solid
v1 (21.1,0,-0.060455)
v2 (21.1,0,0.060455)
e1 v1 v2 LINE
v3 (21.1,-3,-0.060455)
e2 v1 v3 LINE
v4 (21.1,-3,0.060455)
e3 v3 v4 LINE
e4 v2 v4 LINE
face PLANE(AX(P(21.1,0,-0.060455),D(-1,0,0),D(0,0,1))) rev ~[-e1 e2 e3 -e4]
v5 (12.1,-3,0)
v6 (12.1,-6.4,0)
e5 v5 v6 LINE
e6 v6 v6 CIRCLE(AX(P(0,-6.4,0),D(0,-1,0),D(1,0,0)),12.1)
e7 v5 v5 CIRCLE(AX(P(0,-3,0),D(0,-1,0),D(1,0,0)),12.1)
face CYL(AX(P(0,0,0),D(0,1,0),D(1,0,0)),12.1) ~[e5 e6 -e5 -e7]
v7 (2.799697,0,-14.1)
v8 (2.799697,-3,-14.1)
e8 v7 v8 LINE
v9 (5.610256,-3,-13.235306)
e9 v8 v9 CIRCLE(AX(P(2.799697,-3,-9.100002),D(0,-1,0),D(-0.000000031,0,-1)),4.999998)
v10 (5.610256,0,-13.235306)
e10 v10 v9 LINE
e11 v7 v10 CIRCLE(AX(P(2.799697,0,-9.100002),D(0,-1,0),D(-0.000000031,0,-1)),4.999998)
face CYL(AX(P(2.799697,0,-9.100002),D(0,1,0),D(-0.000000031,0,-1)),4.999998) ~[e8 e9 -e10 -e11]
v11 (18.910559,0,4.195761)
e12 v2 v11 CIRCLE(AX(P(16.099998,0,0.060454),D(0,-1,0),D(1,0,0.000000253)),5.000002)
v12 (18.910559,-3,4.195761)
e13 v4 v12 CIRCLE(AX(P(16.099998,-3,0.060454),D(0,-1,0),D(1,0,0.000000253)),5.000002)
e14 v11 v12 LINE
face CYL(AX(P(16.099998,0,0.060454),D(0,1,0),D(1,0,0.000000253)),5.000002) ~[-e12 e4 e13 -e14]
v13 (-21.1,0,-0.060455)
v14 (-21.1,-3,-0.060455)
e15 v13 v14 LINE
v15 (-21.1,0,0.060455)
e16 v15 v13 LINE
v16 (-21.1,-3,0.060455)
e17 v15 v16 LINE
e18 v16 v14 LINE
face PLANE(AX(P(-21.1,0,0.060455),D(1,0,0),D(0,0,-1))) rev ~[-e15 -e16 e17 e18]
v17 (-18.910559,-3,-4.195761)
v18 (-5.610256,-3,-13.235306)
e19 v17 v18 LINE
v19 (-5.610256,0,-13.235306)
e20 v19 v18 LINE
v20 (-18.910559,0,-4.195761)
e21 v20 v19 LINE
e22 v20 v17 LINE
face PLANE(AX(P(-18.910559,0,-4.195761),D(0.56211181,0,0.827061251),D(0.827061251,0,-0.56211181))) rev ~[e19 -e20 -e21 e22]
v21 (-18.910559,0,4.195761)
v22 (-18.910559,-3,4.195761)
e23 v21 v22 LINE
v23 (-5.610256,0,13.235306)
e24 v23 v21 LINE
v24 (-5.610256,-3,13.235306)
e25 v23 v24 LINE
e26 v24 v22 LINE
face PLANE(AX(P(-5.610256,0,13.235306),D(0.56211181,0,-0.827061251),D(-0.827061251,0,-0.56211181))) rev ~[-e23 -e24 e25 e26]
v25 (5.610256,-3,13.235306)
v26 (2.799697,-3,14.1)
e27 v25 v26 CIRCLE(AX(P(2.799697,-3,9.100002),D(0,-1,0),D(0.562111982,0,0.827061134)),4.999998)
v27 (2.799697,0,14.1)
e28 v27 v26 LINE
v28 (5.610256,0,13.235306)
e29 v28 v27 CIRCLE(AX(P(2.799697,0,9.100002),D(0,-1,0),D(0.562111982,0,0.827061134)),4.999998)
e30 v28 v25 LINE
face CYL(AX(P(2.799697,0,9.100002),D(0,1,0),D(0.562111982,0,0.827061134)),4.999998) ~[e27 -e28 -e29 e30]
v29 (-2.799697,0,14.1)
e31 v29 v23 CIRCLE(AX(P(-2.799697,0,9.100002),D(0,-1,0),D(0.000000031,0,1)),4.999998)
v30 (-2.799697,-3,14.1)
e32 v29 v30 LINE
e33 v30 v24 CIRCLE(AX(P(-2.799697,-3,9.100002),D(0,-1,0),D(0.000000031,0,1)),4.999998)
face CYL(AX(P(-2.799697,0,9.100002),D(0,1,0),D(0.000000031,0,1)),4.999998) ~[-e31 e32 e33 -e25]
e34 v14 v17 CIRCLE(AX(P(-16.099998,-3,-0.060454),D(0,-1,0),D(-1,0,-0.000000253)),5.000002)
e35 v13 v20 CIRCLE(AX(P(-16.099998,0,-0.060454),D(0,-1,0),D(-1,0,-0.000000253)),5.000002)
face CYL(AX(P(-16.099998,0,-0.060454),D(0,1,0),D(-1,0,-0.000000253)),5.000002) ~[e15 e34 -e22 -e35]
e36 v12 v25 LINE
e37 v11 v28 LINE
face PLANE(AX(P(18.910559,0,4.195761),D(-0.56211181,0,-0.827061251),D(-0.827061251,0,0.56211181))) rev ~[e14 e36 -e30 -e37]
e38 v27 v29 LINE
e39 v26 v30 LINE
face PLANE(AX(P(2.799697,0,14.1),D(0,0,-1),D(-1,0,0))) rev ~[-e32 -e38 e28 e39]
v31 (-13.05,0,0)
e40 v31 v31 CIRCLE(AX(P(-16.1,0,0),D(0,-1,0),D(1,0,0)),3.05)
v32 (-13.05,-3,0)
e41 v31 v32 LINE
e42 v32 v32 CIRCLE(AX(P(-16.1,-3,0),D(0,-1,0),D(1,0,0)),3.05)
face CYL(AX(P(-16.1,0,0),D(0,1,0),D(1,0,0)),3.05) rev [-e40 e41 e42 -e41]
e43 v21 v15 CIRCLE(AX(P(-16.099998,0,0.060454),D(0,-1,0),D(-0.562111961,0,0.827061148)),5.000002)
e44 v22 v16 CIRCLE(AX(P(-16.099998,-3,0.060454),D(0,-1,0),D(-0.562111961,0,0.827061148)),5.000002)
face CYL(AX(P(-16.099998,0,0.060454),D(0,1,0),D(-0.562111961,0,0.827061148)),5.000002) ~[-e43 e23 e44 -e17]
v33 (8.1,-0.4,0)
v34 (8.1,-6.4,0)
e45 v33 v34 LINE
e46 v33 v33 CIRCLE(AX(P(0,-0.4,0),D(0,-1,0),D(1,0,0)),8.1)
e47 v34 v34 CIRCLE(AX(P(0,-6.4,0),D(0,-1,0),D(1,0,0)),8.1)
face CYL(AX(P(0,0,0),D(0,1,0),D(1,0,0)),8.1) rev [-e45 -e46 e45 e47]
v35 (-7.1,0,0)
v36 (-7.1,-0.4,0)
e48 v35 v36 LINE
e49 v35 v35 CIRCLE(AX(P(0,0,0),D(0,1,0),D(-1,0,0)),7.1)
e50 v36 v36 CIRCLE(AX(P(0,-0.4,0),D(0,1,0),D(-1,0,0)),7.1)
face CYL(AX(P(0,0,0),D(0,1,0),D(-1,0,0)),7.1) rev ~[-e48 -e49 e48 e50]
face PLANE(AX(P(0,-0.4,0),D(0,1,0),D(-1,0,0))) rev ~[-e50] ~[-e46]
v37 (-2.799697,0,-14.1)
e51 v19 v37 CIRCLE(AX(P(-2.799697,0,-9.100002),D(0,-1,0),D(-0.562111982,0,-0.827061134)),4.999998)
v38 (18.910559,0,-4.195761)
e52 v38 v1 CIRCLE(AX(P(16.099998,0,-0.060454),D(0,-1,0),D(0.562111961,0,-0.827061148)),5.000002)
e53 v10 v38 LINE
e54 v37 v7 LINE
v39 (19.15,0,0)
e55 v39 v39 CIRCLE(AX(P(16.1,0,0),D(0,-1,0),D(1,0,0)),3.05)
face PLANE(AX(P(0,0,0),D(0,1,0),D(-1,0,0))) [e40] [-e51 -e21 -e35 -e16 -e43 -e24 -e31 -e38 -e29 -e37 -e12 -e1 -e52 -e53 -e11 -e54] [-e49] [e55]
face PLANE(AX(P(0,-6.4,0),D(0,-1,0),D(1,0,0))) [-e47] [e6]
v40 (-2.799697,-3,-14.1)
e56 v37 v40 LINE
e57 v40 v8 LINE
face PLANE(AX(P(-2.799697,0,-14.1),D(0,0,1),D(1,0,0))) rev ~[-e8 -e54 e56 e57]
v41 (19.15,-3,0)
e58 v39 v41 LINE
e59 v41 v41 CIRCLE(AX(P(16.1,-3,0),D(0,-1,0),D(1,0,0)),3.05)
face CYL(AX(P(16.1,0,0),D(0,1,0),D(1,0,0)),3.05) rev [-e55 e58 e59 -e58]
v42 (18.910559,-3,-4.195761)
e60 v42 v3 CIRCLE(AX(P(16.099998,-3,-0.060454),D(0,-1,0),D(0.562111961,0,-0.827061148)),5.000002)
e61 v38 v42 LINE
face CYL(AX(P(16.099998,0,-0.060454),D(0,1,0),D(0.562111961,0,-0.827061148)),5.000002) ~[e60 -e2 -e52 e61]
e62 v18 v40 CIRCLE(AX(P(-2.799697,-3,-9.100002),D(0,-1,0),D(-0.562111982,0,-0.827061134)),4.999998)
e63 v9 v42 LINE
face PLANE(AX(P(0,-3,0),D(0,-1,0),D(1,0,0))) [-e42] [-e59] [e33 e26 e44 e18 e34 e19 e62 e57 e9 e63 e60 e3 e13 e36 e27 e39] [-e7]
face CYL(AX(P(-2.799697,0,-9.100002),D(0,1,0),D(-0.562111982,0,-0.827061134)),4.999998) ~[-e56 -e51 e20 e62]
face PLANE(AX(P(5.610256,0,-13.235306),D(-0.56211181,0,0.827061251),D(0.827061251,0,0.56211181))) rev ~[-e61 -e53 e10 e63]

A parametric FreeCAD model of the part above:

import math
import FreeCAD as App
import Part
import Sketcher
Q = App.Units.Quantity

doc = App.newDocument("Part")
body = doc.addObject("PartDesign::Body", "Body")

# Sketch on XZ plane
sketch1 = body.newObject("Sketcher::SketchObject", "Sketch")
sketch1.AttachmentSupport = (doc.getObject("XZ_Plane"), [""])
sketch1.MapMode = "FlatFace"
sketch1.addGeometry(Part.Circle(App.Vector(0, 0, 0), App.Vector(0, 0, 1), 12.1), False)
sketch1.addGeometry(Part.Circle(App.Vector(0, 0, 0), App.Vector(0, 0, 1), 8.1), False)
sketch1.addConstraint(Sketcher.Constraint("Coincident", 0, 3, -1, 1))
sketch1.addConstraint(Sketcher.Constraint("Coincident", 1, 3, -1, 1))
sketch1.addConstraint(Sketcher.Constraint("Diameter", 0, Q("24.2 mm")))
sketch1.addConstraint(Sketcher.Constraint("Diameter", 1, Q("16.2 mm")))
pad1 = body.newObject("PartDesign::Pad", "Pad")
pad1.Profile = sketch1
pad1.Length = 6.4

# Sketch on XZ plane
sketch2 = body.newObject("Sketcher::SketchObject", "Sketch001")
sketch2.AttachmentSupport = (doc.getObject("XZ_Plane"), [""])
sketch2.MapMode = "FlatFace"
sketch2.addGeometry(Part.LineSegment(App.Vector(-2.799697, -14.1, 0), App.Vector(2.799697, -14.1, 0)), False)
sketch2.addGeometry(Part.ArcOfCircle(Part.Circle(App.Vector(2.799697, -9.100002, 0), App.Vector(0, 0, 1), 4.999998), math.radians(-90.000002), math.radians(-55.798018)), False)
sketch2.addGeometry(Part.LineSegment(App.Vector(5.610256, -13.235306, 0), App.Vector(18.910559, -4.195761, 0)), False)
sketch2.addGeometry(Part.ArcOfCircle(Part.Circle(App.Vector(16.099998, -0.060454, 0), App.Vector(0, 0, 1), 5.000002), math.radians(-55.79802), math.radians(-0.000014)), False)
sketch2.addGeometry(Part.LineSegment(App.Vector(21.1, -0.060455, 0), App.Vector(21.1, 0.060455, 0)), False)
sketch2.addGeometry(Part.ArcOfCircle(Part.Circle(App.Vector(16.099998, 0.060454, 0), App.Vector(0, 0, 1), 5.000002), math.radians(0.000014), math.radians(55.79802)), False)
sketch2.addGeometry(Part.LineSegment(App.Vector(18.910559, 4.195761, 0), App.Vector(5.610256, 13.235306, 0)), False)
sketch2.addGeometry(Part.ArcOfCircle(Part.Circle(App.Vector(2.799697, 9.100002, 0), App.Vector(0, 0, 1), 4.999998), math.radians(55.798018), math.radians(90.000002)), False)
sketch2.addGeometry(Part.LineSegment(App.Vector(2.799697, 14.1, 0), App.Vector(-2.799697, 14.1, 0)), False)
sketch2.addGeometry(Part.ArcOfCircle(Part.Circle(App.Vector(-2.799697, 9.100002, 0), App.Vector(0, 0, 1), 4.999998), math.radians(89.999998), math.radians(124.201982)), False)
sketch2.addGeometry(Part.LineSegment(App.Vector(-5.610256, 13.235306, 0), App.Vector(-18.910559, 4.195761, 0)), False)
sketch2.addGeometry(Part.ArcOfCircle(Part.Circle(App.Vector(-16.099998, 0.060454, 0), App.Vector(0, 0, 1), 5.000002), math.radians(124.20198), math.radians(179.999986)), False)
sketch2.addGeometry(Part.LineSegment(App.Vector(-21.1, 0.060455, 0), App.Vector(-21.1, -0.060455, 0)), False)
sketch2.addGeometry(Part.ArcOfCircle(Part.Circle(App.Vector(-16.099998, -0.060454, 0), App.Vector(0, 0, 1), 5.000002), math.radians(-179.999986), math.radians(-124.20198)), False)
sketch2.addGeometry(Part.LineSegment(App.Vector(-18.910559, -4.195761, 0), App.Vector(-5.610256, -13.235306, 0)), False)
sketch2.addGeometry(Part.ArcOfCircle(Part.Circle(App.Vector(-2.799697, -9.100002, 0), App.Vector(0, 0, 1), 4.999998), math.radians(-124.201982), math.radians(-89.999998)), False)
sketch2.addGeometry(Part.Circle(App.Vector(-16.1, 0, 0), App.Vector(0, 0, 1), 3.05), False)
sketch2.addGeometry(Part.Circle(App.Vector(0, 0, 0), App.Vector(0, 0, 1), 12.1), False)
sketch2.addGeometry(Part.Circle(App.Vector(16.1, 0, 0), App.Vector(0, 0, 1), 3.05), False)
sketch2.addConstraint(Sketcher.Constraint("Tangent", 0, 2, 1, 1))
sketch2.addConstraint(Sketcher.Constraint("Tangent", 1, 2, 2, 1))
sketch2.addConstraint(Sketcher.Constraint("Tangent", 2, 2, 3, 1))
sketch2.addConstraint(Sketcher.Constraint("Tangent", 3, 2, 4, 1))
sketch2.addConstraint(Sketcher.Constraint("Tangent", 4, 2, 5, 1))
sketch2.addConstraint(Sketcher.Constraint("Tangent", 5, 2, 6, 1))
sketch2.addConstraint(Sketcher.Constraint("Tangent", 6, 2, 7, 1))
sketch2.addConstraint(Sketcher.Constraint("Tangent", 7, 2, 8, 1))
sketch2.addConstraint(Sketcher.Constraint("Tangent", 8, 2, 9, 1))
sketch2.addConstraint(Sketcher.Constraint("Tangent", 9, 2, 10, 1))
sketch2.addConstraint(Sketcher.Constraint("Tangent", 10, 2, 11, 1))
sketch2.addConstraint(Sketcher.Constraint("Tangent", 11, 2, 12, 1))
sketch2.addConstraint(Sketcher.Constraint("Tangent", 12, 2, 13, 1))
sketch2.addConstraint(Sketcher.Constraint("Tangent", 13, 2, 14, 1))
sketch2.addConstraint(Sketcher.Constraint("Tangent", 14, 2, 15, 1))
sketch2.addConstraint(Sketcher.Constraint("Tangent", 15, 2, 0, 1))
sketch2.addConstraint(Sketcher.Constraint("Horizontal", 0))
sketch2.addConstraint(Sketcher.Constraint("Vertical", 4))
sketch2.addConstraint(Sketcher.Constraint("Horizontal", 8))
sketch2.addConstraint(Sketcher.Constraint("Vertical", 12))
sketch2.addConstraint(Sketcher.Constraint("Coincident", 17, 3, -1, 1))
sketch2.addConstraint(Sketcher.Constraint("Equal", 3, 5))
sketch2.addConstraint(Sketcher.Constraint("Equal", 1, 7))
sketch2.addConstraint(Sketcher.Constraint("Equal", 7, 9))
sketch2.addConstraint(Sketcher.Constraint("Equal", 5, 11))
sketch2.addConstraint(Sketcher.Constraint("Equal", 11, 13))
sketch2.addConstraint(Sketcher.Constraint("Equal", 9, 15))
sketch2.addConstraint(Sketcher.Constraint("Equal", 16, 18))
sketch2.addConstraint(Sketcher.Constraint("Symmetric", 1, 3, 9, 3, -1, 1))
sketch2.addConstraint(Sketcher.Constraint("Symmetric", 3, 3, 11, 3, -1, 1))
sketch2.addConstraint(Sketcher.Constraint("Symmetric", 16, 3, 18, 3, -1, 1))
sketch2.addConstraint(Sketcher.Constraint("Symmetric", 5, 2, 13, 2, -1, 1))
sketch2.addConstraint(Sketcher.Constraint("Symmetric", 6, 2, 9, 2, -2))
sketch2.addConstraint(Sketcher.Constraint("PointOnObject", 16, 3, -1))
sketch2.addConstraint(Sketcher.Constraint("Vertical", 13, 3, 16, 3))
sketch2.addConstraint(Sketcher.Constraint("Radius", 1, Q("4.999998 mm")))
sketch2.addConstraint(Sketcher.Constraint("Radius", 3, Q("5.000002 mm")))
sketch2.addConstraint(Sketcher.Constraint("Diameter", 16, Q("6.1 mm")))
sketch2.addConstraint(Sketcher.Constraint("Diameter", 17, Q("24.2 mm")))
sketch2.addConstraint(Sketcher.Constraint("DistanceY", 1, 3, -1, 1, Q("9.100002 mm")))
sketch2.addConstraint(Sketcher.Constraint("DistanceX", -1, 1, 3, 3, Q("16.099998 mm")))
sketch2.addConstraint(Sketcher.Constraint("Distance", 2, Q("16.0814 mm")))
sketch2.addConstraint(Sketcher.Constraint("DistanceY", 4, 1, 4, 2, Q("0.12091 mm")))
pad2 = body.newObject("PartDesign::Pad", "Pad001")
pad2.Profile = sketch2
pad2.Length = 3

# Sketch on XZ plane
sketch3 = body.newObject("Sketcher::SketchObject", "Sketch002")
sketch3.AttachmentSupport = (doc.getObject("XZ_Plane"), [""])
sketch3.MapMode = "FlatFace"
sketch3.addGeometry(Part.Circle(App.Vector(0, 0, 0), App.Vector(0, 0, 1), 8.1), False)
sketch3.addGeometry(Part.Circle(App.Vector(0, 0, 0), App.Vector(0, 0, 1), 7.1), False)
sketch3.addConstraint(Sketcher.Constraint("Coincident", 0, 3, -1, 1))
sketch3.addConstraint(Sketcher.Constraint("Coincident", 1, 3, -1, 1))
sketch3.addConstraint(Sketcher.Constraint("Diameter", 0, Q("16.2 mm")))
sketch3.addConstraint(Sketcher.Constraint("Diameter", 1, Q("14.2 mm")))
pad3 = body.newObject("PartDesign::Pad", "Pad002")
pad3.Profile = sketch3
pad3.Length = 0.4

doc.recompute()
